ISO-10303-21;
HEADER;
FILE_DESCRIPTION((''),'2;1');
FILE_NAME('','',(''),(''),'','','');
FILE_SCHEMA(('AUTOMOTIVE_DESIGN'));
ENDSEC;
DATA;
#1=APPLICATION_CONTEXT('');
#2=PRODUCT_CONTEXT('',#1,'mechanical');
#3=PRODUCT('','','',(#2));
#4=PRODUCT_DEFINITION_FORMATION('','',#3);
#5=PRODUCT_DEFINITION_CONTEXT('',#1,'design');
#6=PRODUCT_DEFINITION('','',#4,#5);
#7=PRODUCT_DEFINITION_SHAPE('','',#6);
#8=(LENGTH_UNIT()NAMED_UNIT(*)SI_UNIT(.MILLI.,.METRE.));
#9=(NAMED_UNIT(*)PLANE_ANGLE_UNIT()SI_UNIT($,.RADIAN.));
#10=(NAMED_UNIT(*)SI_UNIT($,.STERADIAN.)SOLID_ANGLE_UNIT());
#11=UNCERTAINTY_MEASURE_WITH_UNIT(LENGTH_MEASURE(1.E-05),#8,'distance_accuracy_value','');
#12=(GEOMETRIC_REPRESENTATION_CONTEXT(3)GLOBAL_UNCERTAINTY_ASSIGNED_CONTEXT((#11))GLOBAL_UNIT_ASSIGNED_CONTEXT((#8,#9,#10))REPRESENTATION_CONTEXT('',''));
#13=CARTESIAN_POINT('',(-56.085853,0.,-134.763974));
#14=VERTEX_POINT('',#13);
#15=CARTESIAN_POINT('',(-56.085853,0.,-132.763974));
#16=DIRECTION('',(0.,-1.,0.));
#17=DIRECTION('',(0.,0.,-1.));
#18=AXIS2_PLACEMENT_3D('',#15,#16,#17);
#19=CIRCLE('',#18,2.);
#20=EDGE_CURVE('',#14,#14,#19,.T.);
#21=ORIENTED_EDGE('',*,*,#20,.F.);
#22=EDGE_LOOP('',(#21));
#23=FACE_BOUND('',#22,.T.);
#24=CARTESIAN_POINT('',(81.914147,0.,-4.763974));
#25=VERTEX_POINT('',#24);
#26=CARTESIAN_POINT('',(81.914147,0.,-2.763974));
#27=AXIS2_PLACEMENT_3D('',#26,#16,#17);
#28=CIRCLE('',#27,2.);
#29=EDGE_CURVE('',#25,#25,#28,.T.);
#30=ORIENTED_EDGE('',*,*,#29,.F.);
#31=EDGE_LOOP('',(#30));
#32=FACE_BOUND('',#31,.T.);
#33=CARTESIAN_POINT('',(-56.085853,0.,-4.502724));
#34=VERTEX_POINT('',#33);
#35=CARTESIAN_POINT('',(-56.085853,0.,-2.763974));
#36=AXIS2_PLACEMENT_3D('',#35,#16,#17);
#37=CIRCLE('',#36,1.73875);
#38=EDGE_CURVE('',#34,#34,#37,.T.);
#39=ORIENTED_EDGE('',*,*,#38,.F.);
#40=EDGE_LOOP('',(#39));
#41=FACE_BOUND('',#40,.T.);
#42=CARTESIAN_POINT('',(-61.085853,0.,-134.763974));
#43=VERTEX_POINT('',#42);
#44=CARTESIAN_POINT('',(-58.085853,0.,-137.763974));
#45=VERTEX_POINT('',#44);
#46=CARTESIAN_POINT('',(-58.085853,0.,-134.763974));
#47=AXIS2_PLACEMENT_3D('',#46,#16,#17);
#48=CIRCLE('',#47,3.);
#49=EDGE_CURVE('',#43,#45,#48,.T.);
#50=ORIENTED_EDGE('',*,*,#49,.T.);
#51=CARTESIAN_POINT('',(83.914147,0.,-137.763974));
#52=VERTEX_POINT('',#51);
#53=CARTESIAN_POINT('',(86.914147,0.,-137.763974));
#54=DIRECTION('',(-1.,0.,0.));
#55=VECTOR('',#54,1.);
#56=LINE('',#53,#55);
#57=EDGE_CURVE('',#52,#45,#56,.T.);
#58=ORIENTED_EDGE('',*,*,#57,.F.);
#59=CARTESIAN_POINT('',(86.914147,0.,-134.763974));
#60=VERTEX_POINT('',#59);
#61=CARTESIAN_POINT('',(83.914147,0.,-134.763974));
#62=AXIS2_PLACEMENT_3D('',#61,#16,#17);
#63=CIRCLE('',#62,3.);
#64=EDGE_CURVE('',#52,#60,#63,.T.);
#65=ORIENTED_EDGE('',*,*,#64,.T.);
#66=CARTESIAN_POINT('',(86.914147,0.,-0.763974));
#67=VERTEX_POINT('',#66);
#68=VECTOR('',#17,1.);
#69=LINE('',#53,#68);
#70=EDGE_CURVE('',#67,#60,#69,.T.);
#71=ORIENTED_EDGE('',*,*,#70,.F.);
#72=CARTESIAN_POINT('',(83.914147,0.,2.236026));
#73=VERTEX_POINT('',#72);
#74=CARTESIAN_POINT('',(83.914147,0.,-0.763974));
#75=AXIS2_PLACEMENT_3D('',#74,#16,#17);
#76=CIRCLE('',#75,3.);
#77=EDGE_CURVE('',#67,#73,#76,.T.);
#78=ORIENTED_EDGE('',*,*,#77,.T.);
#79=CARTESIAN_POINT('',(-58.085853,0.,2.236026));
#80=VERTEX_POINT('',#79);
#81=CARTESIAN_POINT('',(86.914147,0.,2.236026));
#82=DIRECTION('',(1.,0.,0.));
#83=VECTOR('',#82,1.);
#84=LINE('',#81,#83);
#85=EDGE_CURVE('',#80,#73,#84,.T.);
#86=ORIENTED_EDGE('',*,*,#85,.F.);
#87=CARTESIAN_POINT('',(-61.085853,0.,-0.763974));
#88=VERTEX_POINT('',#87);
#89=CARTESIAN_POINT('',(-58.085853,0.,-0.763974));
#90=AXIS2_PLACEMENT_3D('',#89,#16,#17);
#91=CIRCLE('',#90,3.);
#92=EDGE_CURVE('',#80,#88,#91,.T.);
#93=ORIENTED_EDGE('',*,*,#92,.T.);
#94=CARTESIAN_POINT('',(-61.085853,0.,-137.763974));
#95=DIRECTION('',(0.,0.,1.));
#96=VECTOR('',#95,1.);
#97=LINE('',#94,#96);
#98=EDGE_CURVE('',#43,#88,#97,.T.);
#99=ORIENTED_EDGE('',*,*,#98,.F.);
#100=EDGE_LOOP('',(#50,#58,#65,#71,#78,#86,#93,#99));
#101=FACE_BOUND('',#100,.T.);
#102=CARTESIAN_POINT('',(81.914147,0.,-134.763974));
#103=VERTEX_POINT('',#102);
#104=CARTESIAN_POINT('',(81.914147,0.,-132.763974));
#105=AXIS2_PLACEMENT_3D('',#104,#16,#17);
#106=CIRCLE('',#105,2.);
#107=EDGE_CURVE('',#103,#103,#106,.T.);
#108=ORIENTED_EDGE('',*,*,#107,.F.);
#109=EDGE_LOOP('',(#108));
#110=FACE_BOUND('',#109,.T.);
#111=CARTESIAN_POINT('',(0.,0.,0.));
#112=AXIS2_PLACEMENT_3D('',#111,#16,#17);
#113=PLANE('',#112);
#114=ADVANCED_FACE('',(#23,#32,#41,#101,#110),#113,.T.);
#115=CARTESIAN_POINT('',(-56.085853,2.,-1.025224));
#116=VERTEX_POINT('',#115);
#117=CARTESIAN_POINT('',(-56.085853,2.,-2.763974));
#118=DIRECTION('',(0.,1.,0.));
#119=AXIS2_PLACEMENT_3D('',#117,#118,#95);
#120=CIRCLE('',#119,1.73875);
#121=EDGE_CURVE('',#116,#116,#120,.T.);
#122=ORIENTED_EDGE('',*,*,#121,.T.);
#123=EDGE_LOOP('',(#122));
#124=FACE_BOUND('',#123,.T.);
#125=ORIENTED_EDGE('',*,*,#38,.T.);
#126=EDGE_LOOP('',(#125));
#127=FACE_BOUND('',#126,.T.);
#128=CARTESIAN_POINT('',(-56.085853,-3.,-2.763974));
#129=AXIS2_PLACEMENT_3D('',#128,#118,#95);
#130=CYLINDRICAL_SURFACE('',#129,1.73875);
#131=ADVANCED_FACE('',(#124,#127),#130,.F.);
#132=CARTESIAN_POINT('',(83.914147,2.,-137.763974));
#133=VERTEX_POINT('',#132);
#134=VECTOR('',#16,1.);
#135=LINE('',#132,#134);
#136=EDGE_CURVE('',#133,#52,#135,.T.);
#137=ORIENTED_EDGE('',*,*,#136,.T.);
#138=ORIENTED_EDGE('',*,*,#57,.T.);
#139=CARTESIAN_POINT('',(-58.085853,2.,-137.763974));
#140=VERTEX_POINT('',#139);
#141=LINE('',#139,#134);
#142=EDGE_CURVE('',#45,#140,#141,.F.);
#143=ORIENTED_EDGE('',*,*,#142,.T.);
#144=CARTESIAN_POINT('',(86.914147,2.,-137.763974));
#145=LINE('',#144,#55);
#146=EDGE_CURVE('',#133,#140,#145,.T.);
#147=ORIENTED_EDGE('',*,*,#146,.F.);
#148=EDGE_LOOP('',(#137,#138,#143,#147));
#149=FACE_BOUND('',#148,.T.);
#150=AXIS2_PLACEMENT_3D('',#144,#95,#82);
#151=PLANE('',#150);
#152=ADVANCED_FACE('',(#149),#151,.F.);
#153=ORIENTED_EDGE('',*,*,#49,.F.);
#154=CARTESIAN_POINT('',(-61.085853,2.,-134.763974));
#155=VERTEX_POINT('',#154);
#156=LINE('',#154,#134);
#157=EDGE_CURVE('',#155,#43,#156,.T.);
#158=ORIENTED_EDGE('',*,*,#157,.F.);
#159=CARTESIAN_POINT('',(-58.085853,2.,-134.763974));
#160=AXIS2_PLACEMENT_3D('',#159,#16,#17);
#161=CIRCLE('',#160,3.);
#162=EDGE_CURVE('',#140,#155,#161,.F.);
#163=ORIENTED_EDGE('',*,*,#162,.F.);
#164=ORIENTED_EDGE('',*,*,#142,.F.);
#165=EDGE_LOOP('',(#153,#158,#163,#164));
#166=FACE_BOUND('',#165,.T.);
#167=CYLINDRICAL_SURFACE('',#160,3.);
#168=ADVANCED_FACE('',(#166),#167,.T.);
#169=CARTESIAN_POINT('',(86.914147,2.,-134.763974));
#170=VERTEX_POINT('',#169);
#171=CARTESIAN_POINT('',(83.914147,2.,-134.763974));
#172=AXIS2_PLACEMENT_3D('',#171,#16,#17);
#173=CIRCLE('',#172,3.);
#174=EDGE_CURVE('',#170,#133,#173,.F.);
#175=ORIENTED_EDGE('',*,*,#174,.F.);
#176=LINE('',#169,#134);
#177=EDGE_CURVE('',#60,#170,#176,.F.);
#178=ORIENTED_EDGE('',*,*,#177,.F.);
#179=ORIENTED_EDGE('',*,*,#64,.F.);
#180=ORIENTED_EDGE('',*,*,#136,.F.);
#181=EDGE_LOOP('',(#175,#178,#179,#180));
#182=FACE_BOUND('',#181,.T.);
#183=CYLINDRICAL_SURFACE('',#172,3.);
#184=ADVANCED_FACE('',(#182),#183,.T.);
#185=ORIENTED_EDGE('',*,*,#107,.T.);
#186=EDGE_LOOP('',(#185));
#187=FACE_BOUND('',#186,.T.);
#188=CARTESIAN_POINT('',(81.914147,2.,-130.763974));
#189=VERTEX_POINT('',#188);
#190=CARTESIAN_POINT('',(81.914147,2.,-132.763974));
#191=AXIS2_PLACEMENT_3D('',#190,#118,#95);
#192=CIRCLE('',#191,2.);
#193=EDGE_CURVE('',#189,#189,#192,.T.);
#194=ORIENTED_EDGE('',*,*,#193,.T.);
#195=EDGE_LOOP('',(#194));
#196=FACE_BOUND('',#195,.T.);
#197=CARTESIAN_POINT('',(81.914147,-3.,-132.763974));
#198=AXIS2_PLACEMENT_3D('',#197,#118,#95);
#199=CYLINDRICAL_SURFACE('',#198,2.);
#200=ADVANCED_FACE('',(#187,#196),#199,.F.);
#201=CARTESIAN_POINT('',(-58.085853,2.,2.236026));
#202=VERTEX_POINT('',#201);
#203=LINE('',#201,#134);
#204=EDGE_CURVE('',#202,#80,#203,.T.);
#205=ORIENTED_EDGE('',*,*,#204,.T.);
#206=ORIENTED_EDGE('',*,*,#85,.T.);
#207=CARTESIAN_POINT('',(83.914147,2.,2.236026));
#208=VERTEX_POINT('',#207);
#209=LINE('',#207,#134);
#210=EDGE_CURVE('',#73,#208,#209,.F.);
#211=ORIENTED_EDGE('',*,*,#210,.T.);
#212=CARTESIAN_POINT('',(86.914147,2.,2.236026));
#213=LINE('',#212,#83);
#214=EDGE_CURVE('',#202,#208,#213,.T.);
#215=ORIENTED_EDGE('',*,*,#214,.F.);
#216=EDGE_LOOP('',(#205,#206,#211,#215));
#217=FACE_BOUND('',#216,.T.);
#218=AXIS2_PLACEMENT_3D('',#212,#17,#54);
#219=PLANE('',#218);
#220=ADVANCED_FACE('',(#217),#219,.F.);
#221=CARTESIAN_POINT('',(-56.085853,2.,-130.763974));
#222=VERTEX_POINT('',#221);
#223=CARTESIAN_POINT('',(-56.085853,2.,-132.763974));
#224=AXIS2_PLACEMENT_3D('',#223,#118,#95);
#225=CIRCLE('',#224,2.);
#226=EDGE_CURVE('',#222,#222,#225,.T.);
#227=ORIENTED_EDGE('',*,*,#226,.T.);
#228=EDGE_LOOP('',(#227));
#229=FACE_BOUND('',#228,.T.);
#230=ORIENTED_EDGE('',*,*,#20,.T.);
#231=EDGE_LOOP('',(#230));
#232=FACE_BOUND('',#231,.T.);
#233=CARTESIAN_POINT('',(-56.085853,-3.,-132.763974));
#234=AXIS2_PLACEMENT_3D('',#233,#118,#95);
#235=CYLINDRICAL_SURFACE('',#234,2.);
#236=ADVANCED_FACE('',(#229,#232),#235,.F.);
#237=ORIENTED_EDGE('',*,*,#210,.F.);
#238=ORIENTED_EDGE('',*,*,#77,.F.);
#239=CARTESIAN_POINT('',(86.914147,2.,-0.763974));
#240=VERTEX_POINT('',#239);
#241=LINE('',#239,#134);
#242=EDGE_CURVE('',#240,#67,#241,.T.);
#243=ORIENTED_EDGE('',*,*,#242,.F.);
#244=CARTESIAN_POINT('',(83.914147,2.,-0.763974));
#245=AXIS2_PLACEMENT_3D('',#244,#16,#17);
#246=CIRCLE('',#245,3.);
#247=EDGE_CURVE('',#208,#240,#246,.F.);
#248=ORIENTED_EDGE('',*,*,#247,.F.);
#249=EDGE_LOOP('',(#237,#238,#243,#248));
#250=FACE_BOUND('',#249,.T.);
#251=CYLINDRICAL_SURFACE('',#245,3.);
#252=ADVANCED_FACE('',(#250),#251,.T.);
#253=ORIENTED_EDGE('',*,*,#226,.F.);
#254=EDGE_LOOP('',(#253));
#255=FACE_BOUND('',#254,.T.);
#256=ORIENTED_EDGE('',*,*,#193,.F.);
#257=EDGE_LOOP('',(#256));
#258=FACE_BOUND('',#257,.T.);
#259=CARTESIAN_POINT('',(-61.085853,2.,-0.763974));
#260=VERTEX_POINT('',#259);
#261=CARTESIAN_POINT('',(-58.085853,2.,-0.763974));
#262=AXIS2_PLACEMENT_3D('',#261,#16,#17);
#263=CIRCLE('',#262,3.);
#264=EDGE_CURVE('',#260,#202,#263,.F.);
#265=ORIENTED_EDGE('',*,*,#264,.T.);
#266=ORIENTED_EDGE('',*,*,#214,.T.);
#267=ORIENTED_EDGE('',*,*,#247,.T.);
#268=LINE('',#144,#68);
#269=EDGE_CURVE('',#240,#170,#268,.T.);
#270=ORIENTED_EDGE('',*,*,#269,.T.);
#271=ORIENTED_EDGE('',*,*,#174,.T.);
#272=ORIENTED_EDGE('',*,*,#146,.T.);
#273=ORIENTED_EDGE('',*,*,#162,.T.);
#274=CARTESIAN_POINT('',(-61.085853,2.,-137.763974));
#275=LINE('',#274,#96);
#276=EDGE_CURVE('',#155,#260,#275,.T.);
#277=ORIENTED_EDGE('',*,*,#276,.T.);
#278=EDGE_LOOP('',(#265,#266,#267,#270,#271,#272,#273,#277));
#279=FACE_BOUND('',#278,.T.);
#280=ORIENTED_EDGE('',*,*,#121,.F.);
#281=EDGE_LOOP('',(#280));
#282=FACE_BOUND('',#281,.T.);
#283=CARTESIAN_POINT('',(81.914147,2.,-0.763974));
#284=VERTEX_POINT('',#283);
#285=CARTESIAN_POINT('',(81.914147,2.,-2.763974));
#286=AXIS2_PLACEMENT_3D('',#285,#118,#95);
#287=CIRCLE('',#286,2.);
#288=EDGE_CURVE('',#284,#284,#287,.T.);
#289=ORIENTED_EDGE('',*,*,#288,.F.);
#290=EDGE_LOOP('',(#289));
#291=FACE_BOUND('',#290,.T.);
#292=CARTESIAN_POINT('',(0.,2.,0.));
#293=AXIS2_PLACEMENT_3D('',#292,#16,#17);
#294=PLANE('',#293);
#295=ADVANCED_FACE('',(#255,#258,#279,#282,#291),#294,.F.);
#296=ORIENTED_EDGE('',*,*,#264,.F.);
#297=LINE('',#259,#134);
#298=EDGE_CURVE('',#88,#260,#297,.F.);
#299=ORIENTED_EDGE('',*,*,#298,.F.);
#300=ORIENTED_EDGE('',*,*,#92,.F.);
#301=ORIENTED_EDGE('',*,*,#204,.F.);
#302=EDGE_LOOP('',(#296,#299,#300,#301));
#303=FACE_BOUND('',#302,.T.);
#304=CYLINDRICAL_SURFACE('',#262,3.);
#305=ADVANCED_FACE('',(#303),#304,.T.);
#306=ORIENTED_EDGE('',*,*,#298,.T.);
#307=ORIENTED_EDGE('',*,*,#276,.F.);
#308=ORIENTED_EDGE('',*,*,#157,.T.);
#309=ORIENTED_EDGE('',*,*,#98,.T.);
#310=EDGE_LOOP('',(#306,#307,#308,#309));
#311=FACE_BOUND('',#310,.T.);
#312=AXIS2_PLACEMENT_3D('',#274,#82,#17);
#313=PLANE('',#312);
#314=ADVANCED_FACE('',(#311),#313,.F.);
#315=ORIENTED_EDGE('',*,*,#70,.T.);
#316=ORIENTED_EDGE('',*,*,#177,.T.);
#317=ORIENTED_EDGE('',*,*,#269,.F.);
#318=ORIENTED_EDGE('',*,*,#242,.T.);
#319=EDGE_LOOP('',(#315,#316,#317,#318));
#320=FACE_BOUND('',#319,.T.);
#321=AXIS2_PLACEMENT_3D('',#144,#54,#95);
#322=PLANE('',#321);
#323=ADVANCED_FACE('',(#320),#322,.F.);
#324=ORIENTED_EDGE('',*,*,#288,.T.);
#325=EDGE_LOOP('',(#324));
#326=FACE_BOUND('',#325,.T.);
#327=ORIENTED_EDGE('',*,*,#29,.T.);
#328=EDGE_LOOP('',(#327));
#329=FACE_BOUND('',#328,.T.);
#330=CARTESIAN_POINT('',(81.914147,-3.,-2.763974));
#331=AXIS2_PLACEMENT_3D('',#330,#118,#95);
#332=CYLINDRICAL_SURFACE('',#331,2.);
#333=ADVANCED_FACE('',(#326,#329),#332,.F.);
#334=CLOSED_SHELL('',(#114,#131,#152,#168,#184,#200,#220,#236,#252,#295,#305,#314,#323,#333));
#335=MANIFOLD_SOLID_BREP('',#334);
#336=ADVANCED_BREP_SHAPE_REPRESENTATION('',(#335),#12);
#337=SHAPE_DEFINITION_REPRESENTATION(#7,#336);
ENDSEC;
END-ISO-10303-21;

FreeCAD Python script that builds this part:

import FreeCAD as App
import Part
import Sketcher

V = App.Vector
Q = App.Units.Quantity


def edges_at(feature, points):
    """Names of the edges that pass closest to the given points."""
    edges = feature.Shape.Edges
    near = lambda p: min(range(len(edges)), key=lambda i: edges[i].distToShape(Part.Vertex(*p))[0])
    return sorted({f"Edge{near(p) + 1}" for p in points})


def add_polygon(sketch, points):
    """Adds a closed chain of lines whose ends are joined by coincident constraints."""
    first, n = sketch.GeometryCount, len(points)
    for a, b in zip(points, points[1:] + points[:1]):
        sketch.addGeometry(Part.LineSegment(App.Vector(*a, 0), App.Vector(*b, 0)), False)
    for i in range(n):
        sketch.addConstraint(Sketcher.Constraint("Coincident", first + i, 2, first + (i + 1) % n, 1))

doc = App.newDocument("Part")
body = doc.addObject("PartDesign::Body", "Body")

sketch1 = doc.addObject("Sketcher::SketchObject", "Sketch")
body.addObject(sketch1)
sketch1.AttachmentSupport = (doc.XZ_Plane, [""])
sketch1.MapMode = "FlatFace"
add_polygon(sketch1, [(-61, -138), (-61, 2), (87, 2), (87, -138)])
sketch1.addConstraint(Sketcher.Constraint("Vertical", 0))
sketch1.addConstraint(Sketcher.Constraint("Horizontal", 1))
sketch1.addConstraint(Sketcher.Constraint("Vertical", 2))
sketch1.addConstraint(Sketcher.Constraint("Horizontal", 3))
sketch1.addConstraint(Sketcher.Constraint("DistanceX", 1, 1, 1, 2, Q("148 mm")))
sketch1.addConstraint(Sketcher.Constraint("DistanceY", 0, 1, 0, 2, Q("140 mm")))
sketch1.addConstraint(Sketcher.Constraint("DistanceX", 0, 2, -1, 1, Q("61.085853 mm")))
sketch1.addConstraint(Sketcher.Constraint("DistanceY", -1, 1, 0, 2, Q("2.236026 mm")))
pad1 = doc.addObject("PartDesign::Pad", "Pad")
body.addObject(pad1)
pad1.Profile = sketch1
pad1.Length = 2
pad1.Reversed = True

sketch2 = doc.addObject("Sketcher::SketchObject", "Sketch001")
body.addObject(sketch2)
sketch2.AttachmentSupport = (doc.XZ_Plane, [""])
sketch2.MapMode = "FlatFace"
sketch2.AttachmentOffset = App.Placement(V(0, 0, -2), App.Rotation())
sketch2.addGeometry(Part.Circle(V(-56.1, -132.8, 0), V(0, 0, 1), 2), False)
sketch2.addGeometry(Part.Circle(V(81.9, -132.8, 0), V(0, 0, 1), 2), False)
sketch2.addGeometry(Part.Circle(V(81.9, -2.8, 0), V(0, 0, 1), 2), False)
sketch2.addGeometry(Part.Circle(V(-56.1, -2.8, 0), V(0, 0, 1), 1.7), False)
sketch2.addConstraint(Sketcher.Constraint("Equal", 0, 1))
sketch2.addConstraint(Sketcher.Constraint("Equal", 1, 2))
sketch2.addConstraint(Sketcher.Constraint("Horizontal", 0, 3, 1, 3))
sketch2.addConstraint(Sketcher.Constraint("Horizontal", 2, 3, 3, 3))
sketch2.addConstraint(Sketcher.Constraint("Vertical", 1, 3, 2, 3))
sketch2.addConstraint(Sketcher.Constraint("Vertical", 0, 3, 3, 3))
sketch2.addConstraint(Sketcher.Constraint("Diameter", 0, Q("4 mm")))
sketch2.addConstraint(Sketcher.Constraint("DistanceX", 0, 3, 1, 3, Q("138 mm")))
sketch2.addConstraint(Sketcher.Constraint("DistanceY", 1, 3, 2, 3, Q("130 mm")))
sketch2.addConstraint(Sketcher.Constraint("Diameter", 3, Q("3.4775 mm")))
sketch2.addConstraint(Sketcher.Constraint("DistanceX", 0, 3, -1, 1, Q("56.085853 mm")))
sketch2.addConstraint(Sketcher.Constraint("DistanceY", 0, 3, -1, 1, Q("132.763974 mm")))
pocket1 = doc.addObject("PartDesign::Pocket", "Pocket")
body.addObject(pocket1)
pocket1.Profile = sketch2
pocket1.Length = 5
pocket1.Reversed = True
doc.recompute()

fillet = doc.addObject("PartDesign::Fillet", "Fillet")
body.addObject(fillet)
fillet.Base = (pocket1, edges_at(pocket1, [(86.914, 1, 2.236)]))
fillet.Radius = 3
doc.recompute()

fillet2 = doc.addObject("PartDesign::Fillet", "Fillet001")
body.addObject(fillet2)
fillet2.Base = (fillet, edges_at(fillet, [(86.914, 1, -137.764)]))
fillet2.Radius = 3
doc.recompute()

fillet3 = doc.addObject("PartDesign::Fillet", "Fillet002")
body.addObject(fillet3)
fillet3.Base = (fillet2, edges_at(fillet2, [(-61.086, 1, -137.764)]))
fillet3.Radius = 3
doc.recompute()

fillet4 = doc.addObject("PartDesign::Fillet", "Fillet003")
body.addObject(fillet4)
fillet4.Base = (fillet3, edges_at(fillet3, [(-61.086, 1, 2.236)]))
fillet4.Radius = 3

doc.recompute()
